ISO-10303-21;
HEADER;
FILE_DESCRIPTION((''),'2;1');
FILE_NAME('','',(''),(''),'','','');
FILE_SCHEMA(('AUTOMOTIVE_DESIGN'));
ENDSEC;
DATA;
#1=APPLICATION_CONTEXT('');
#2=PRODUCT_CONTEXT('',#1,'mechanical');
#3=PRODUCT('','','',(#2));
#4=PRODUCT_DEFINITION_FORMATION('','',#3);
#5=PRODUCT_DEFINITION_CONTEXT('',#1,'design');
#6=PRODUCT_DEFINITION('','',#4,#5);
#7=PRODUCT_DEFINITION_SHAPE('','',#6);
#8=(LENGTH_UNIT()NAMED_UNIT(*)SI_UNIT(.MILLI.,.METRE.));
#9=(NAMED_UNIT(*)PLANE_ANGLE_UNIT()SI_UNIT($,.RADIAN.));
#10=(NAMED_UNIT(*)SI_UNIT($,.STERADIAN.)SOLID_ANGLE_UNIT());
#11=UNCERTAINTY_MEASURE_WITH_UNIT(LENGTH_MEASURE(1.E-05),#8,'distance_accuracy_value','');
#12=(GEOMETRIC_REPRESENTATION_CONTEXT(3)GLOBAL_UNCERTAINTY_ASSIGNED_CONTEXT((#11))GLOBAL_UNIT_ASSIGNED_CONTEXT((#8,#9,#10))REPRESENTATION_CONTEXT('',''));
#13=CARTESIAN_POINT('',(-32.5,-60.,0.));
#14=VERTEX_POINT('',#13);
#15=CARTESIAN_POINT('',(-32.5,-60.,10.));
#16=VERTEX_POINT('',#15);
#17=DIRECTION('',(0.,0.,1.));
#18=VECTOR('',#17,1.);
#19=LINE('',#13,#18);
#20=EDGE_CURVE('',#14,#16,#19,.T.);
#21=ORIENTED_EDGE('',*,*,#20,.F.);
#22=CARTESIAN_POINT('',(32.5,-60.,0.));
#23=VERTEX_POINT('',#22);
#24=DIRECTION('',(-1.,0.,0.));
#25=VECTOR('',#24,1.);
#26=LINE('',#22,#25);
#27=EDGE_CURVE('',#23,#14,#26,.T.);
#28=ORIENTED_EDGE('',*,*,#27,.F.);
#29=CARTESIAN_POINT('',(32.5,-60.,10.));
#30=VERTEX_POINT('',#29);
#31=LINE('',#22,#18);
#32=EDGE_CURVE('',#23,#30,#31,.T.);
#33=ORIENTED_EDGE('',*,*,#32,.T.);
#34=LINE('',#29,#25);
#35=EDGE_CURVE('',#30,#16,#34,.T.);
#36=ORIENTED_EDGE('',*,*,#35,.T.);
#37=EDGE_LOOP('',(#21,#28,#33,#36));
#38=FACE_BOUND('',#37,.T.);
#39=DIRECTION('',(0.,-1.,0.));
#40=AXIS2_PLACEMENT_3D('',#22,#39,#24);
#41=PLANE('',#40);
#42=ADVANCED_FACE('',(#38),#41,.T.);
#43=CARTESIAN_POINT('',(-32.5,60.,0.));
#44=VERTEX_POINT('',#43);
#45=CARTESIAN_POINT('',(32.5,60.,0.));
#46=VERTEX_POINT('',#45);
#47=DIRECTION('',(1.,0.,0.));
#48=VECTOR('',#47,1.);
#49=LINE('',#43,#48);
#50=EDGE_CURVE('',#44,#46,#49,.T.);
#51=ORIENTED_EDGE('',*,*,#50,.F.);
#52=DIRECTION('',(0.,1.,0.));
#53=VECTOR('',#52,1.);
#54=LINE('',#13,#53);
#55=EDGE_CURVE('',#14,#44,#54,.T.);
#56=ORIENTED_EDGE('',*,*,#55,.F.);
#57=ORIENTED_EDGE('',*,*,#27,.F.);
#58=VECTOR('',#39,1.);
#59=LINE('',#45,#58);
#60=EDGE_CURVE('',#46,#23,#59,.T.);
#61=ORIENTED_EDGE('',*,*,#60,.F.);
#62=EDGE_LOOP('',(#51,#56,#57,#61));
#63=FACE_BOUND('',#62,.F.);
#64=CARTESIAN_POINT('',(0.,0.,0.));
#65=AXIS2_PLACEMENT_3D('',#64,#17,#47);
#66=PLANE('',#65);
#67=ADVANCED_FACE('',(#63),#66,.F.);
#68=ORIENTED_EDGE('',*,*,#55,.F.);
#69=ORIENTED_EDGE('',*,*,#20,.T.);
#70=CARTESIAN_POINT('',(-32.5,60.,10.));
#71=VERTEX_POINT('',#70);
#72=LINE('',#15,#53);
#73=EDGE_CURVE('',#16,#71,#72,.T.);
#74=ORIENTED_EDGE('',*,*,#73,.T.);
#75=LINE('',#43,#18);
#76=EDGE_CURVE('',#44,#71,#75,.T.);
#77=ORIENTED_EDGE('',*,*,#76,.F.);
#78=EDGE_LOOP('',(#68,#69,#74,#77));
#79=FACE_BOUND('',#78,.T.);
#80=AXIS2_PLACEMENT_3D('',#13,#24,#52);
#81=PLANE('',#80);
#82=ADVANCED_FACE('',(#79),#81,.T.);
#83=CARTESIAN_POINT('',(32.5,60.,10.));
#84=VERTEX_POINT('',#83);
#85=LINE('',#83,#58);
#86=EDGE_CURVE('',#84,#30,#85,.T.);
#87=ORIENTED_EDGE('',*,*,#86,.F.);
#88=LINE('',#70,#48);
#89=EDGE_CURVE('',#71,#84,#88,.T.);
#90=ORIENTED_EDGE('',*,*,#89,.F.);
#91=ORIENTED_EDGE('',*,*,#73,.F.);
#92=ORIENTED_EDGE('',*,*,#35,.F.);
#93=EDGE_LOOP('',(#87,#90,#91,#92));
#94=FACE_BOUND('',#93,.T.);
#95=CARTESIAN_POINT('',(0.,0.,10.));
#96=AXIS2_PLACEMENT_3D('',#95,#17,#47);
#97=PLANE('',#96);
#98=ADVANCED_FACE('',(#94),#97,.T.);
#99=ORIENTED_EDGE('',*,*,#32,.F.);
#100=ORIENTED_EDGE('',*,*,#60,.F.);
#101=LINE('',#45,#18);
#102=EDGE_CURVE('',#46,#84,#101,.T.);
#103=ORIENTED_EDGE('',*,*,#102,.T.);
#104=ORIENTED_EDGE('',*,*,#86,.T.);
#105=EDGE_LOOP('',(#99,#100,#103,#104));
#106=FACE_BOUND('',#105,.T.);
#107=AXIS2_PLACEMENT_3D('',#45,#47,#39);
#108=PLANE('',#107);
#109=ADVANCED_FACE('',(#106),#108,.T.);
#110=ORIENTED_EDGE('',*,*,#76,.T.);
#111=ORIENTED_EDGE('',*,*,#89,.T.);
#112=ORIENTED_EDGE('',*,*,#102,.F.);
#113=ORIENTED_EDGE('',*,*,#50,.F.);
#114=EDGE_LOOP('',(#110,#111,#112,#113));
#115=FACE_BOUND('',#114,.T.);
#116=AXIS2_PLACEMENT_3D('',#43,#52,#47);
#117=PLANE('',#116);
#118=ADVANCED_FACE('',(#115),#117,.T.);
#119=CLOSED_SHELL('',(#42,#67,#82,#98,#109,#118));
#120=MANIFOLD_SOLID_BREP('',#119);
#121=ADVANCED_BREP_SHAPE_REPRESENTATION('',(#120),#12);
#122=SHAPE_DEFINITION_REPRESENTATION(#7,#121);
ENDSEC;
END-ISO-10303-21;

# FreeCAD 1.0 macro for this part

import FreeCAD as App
import Part
import Sketcher
Q = App.Units.Quantity

doc = App.newDocument("Part")
body = doc.addObject("PartDesign::Body", "Body")

# Sketch on XY plane
sketch1 = body.newObject("Sketcher::SketchObject", "Sketch")
sketch1.AttachmentSupport = (doc.getObject("XY_Plane"), [""])
sketch1.MapMode = "FlatFace"
sketch1.addGeometry(Part.LineSegment(App.Vector(-32, -60, 0), App.Vector(32, -60, 0)), False)
sketch1.addGeometry(Part.LineSegment(App.Vector(32, -60, 0), App.Vector(32, 60, 0)), False)
sketch1.addGeometry(Part.LineSegment(App.Vector(32, 60, 0), App.Vector(-32, 60, 0)), False)
sketch1.addGeometry(Part.LineSegment(App.Vector(-32, 60, 0), App.Vector(-32, -60, 0)), False)
sketch1.addConstraint(Sketcher.Constraint("Coincident", 0, 2, 1, 1))
sketch1.addConstraint(Sketcher.Constraint("Coincident", 1, 2, 2, 1))
sketch1.addConstraint(Sketcher.Constraint("Coincident", 2, 2, 3, 1))
sketch1.addConstraint(Sketcher.Constraint("Coincident", 3, 2, 0, 1))
sketch1.addConstraint(Sketcher.Constraint("Horizontal", 0))
sketch1.addConstraint(Sketcher.Constraint("Vertical", 1))
sketch1.addConstraint(Sketcher.Constraint("Horizontal", 2))
sketch1.addConstraint(Sketcher.Constraint("Vertical", 3))
sketch1.addConstraint(Sketcher.Constraint("Symmetric", 0, 2, 2, 2, -1, 1))
sketch1.addConstraint(Sketcher.Constraint("DistanceX", 0, 1, 0, 2, Q("65 mm")))
sketch1.addConstraint(Sketcher.Constraint("DistanceY", 1, 1, 1, 2, Q("120 mm")))
pad1 = body.newObject("PartDesign::Pad", "Pad")
pad1.Profile = sketch1
pad1.Length = 10

doc.recompute()
